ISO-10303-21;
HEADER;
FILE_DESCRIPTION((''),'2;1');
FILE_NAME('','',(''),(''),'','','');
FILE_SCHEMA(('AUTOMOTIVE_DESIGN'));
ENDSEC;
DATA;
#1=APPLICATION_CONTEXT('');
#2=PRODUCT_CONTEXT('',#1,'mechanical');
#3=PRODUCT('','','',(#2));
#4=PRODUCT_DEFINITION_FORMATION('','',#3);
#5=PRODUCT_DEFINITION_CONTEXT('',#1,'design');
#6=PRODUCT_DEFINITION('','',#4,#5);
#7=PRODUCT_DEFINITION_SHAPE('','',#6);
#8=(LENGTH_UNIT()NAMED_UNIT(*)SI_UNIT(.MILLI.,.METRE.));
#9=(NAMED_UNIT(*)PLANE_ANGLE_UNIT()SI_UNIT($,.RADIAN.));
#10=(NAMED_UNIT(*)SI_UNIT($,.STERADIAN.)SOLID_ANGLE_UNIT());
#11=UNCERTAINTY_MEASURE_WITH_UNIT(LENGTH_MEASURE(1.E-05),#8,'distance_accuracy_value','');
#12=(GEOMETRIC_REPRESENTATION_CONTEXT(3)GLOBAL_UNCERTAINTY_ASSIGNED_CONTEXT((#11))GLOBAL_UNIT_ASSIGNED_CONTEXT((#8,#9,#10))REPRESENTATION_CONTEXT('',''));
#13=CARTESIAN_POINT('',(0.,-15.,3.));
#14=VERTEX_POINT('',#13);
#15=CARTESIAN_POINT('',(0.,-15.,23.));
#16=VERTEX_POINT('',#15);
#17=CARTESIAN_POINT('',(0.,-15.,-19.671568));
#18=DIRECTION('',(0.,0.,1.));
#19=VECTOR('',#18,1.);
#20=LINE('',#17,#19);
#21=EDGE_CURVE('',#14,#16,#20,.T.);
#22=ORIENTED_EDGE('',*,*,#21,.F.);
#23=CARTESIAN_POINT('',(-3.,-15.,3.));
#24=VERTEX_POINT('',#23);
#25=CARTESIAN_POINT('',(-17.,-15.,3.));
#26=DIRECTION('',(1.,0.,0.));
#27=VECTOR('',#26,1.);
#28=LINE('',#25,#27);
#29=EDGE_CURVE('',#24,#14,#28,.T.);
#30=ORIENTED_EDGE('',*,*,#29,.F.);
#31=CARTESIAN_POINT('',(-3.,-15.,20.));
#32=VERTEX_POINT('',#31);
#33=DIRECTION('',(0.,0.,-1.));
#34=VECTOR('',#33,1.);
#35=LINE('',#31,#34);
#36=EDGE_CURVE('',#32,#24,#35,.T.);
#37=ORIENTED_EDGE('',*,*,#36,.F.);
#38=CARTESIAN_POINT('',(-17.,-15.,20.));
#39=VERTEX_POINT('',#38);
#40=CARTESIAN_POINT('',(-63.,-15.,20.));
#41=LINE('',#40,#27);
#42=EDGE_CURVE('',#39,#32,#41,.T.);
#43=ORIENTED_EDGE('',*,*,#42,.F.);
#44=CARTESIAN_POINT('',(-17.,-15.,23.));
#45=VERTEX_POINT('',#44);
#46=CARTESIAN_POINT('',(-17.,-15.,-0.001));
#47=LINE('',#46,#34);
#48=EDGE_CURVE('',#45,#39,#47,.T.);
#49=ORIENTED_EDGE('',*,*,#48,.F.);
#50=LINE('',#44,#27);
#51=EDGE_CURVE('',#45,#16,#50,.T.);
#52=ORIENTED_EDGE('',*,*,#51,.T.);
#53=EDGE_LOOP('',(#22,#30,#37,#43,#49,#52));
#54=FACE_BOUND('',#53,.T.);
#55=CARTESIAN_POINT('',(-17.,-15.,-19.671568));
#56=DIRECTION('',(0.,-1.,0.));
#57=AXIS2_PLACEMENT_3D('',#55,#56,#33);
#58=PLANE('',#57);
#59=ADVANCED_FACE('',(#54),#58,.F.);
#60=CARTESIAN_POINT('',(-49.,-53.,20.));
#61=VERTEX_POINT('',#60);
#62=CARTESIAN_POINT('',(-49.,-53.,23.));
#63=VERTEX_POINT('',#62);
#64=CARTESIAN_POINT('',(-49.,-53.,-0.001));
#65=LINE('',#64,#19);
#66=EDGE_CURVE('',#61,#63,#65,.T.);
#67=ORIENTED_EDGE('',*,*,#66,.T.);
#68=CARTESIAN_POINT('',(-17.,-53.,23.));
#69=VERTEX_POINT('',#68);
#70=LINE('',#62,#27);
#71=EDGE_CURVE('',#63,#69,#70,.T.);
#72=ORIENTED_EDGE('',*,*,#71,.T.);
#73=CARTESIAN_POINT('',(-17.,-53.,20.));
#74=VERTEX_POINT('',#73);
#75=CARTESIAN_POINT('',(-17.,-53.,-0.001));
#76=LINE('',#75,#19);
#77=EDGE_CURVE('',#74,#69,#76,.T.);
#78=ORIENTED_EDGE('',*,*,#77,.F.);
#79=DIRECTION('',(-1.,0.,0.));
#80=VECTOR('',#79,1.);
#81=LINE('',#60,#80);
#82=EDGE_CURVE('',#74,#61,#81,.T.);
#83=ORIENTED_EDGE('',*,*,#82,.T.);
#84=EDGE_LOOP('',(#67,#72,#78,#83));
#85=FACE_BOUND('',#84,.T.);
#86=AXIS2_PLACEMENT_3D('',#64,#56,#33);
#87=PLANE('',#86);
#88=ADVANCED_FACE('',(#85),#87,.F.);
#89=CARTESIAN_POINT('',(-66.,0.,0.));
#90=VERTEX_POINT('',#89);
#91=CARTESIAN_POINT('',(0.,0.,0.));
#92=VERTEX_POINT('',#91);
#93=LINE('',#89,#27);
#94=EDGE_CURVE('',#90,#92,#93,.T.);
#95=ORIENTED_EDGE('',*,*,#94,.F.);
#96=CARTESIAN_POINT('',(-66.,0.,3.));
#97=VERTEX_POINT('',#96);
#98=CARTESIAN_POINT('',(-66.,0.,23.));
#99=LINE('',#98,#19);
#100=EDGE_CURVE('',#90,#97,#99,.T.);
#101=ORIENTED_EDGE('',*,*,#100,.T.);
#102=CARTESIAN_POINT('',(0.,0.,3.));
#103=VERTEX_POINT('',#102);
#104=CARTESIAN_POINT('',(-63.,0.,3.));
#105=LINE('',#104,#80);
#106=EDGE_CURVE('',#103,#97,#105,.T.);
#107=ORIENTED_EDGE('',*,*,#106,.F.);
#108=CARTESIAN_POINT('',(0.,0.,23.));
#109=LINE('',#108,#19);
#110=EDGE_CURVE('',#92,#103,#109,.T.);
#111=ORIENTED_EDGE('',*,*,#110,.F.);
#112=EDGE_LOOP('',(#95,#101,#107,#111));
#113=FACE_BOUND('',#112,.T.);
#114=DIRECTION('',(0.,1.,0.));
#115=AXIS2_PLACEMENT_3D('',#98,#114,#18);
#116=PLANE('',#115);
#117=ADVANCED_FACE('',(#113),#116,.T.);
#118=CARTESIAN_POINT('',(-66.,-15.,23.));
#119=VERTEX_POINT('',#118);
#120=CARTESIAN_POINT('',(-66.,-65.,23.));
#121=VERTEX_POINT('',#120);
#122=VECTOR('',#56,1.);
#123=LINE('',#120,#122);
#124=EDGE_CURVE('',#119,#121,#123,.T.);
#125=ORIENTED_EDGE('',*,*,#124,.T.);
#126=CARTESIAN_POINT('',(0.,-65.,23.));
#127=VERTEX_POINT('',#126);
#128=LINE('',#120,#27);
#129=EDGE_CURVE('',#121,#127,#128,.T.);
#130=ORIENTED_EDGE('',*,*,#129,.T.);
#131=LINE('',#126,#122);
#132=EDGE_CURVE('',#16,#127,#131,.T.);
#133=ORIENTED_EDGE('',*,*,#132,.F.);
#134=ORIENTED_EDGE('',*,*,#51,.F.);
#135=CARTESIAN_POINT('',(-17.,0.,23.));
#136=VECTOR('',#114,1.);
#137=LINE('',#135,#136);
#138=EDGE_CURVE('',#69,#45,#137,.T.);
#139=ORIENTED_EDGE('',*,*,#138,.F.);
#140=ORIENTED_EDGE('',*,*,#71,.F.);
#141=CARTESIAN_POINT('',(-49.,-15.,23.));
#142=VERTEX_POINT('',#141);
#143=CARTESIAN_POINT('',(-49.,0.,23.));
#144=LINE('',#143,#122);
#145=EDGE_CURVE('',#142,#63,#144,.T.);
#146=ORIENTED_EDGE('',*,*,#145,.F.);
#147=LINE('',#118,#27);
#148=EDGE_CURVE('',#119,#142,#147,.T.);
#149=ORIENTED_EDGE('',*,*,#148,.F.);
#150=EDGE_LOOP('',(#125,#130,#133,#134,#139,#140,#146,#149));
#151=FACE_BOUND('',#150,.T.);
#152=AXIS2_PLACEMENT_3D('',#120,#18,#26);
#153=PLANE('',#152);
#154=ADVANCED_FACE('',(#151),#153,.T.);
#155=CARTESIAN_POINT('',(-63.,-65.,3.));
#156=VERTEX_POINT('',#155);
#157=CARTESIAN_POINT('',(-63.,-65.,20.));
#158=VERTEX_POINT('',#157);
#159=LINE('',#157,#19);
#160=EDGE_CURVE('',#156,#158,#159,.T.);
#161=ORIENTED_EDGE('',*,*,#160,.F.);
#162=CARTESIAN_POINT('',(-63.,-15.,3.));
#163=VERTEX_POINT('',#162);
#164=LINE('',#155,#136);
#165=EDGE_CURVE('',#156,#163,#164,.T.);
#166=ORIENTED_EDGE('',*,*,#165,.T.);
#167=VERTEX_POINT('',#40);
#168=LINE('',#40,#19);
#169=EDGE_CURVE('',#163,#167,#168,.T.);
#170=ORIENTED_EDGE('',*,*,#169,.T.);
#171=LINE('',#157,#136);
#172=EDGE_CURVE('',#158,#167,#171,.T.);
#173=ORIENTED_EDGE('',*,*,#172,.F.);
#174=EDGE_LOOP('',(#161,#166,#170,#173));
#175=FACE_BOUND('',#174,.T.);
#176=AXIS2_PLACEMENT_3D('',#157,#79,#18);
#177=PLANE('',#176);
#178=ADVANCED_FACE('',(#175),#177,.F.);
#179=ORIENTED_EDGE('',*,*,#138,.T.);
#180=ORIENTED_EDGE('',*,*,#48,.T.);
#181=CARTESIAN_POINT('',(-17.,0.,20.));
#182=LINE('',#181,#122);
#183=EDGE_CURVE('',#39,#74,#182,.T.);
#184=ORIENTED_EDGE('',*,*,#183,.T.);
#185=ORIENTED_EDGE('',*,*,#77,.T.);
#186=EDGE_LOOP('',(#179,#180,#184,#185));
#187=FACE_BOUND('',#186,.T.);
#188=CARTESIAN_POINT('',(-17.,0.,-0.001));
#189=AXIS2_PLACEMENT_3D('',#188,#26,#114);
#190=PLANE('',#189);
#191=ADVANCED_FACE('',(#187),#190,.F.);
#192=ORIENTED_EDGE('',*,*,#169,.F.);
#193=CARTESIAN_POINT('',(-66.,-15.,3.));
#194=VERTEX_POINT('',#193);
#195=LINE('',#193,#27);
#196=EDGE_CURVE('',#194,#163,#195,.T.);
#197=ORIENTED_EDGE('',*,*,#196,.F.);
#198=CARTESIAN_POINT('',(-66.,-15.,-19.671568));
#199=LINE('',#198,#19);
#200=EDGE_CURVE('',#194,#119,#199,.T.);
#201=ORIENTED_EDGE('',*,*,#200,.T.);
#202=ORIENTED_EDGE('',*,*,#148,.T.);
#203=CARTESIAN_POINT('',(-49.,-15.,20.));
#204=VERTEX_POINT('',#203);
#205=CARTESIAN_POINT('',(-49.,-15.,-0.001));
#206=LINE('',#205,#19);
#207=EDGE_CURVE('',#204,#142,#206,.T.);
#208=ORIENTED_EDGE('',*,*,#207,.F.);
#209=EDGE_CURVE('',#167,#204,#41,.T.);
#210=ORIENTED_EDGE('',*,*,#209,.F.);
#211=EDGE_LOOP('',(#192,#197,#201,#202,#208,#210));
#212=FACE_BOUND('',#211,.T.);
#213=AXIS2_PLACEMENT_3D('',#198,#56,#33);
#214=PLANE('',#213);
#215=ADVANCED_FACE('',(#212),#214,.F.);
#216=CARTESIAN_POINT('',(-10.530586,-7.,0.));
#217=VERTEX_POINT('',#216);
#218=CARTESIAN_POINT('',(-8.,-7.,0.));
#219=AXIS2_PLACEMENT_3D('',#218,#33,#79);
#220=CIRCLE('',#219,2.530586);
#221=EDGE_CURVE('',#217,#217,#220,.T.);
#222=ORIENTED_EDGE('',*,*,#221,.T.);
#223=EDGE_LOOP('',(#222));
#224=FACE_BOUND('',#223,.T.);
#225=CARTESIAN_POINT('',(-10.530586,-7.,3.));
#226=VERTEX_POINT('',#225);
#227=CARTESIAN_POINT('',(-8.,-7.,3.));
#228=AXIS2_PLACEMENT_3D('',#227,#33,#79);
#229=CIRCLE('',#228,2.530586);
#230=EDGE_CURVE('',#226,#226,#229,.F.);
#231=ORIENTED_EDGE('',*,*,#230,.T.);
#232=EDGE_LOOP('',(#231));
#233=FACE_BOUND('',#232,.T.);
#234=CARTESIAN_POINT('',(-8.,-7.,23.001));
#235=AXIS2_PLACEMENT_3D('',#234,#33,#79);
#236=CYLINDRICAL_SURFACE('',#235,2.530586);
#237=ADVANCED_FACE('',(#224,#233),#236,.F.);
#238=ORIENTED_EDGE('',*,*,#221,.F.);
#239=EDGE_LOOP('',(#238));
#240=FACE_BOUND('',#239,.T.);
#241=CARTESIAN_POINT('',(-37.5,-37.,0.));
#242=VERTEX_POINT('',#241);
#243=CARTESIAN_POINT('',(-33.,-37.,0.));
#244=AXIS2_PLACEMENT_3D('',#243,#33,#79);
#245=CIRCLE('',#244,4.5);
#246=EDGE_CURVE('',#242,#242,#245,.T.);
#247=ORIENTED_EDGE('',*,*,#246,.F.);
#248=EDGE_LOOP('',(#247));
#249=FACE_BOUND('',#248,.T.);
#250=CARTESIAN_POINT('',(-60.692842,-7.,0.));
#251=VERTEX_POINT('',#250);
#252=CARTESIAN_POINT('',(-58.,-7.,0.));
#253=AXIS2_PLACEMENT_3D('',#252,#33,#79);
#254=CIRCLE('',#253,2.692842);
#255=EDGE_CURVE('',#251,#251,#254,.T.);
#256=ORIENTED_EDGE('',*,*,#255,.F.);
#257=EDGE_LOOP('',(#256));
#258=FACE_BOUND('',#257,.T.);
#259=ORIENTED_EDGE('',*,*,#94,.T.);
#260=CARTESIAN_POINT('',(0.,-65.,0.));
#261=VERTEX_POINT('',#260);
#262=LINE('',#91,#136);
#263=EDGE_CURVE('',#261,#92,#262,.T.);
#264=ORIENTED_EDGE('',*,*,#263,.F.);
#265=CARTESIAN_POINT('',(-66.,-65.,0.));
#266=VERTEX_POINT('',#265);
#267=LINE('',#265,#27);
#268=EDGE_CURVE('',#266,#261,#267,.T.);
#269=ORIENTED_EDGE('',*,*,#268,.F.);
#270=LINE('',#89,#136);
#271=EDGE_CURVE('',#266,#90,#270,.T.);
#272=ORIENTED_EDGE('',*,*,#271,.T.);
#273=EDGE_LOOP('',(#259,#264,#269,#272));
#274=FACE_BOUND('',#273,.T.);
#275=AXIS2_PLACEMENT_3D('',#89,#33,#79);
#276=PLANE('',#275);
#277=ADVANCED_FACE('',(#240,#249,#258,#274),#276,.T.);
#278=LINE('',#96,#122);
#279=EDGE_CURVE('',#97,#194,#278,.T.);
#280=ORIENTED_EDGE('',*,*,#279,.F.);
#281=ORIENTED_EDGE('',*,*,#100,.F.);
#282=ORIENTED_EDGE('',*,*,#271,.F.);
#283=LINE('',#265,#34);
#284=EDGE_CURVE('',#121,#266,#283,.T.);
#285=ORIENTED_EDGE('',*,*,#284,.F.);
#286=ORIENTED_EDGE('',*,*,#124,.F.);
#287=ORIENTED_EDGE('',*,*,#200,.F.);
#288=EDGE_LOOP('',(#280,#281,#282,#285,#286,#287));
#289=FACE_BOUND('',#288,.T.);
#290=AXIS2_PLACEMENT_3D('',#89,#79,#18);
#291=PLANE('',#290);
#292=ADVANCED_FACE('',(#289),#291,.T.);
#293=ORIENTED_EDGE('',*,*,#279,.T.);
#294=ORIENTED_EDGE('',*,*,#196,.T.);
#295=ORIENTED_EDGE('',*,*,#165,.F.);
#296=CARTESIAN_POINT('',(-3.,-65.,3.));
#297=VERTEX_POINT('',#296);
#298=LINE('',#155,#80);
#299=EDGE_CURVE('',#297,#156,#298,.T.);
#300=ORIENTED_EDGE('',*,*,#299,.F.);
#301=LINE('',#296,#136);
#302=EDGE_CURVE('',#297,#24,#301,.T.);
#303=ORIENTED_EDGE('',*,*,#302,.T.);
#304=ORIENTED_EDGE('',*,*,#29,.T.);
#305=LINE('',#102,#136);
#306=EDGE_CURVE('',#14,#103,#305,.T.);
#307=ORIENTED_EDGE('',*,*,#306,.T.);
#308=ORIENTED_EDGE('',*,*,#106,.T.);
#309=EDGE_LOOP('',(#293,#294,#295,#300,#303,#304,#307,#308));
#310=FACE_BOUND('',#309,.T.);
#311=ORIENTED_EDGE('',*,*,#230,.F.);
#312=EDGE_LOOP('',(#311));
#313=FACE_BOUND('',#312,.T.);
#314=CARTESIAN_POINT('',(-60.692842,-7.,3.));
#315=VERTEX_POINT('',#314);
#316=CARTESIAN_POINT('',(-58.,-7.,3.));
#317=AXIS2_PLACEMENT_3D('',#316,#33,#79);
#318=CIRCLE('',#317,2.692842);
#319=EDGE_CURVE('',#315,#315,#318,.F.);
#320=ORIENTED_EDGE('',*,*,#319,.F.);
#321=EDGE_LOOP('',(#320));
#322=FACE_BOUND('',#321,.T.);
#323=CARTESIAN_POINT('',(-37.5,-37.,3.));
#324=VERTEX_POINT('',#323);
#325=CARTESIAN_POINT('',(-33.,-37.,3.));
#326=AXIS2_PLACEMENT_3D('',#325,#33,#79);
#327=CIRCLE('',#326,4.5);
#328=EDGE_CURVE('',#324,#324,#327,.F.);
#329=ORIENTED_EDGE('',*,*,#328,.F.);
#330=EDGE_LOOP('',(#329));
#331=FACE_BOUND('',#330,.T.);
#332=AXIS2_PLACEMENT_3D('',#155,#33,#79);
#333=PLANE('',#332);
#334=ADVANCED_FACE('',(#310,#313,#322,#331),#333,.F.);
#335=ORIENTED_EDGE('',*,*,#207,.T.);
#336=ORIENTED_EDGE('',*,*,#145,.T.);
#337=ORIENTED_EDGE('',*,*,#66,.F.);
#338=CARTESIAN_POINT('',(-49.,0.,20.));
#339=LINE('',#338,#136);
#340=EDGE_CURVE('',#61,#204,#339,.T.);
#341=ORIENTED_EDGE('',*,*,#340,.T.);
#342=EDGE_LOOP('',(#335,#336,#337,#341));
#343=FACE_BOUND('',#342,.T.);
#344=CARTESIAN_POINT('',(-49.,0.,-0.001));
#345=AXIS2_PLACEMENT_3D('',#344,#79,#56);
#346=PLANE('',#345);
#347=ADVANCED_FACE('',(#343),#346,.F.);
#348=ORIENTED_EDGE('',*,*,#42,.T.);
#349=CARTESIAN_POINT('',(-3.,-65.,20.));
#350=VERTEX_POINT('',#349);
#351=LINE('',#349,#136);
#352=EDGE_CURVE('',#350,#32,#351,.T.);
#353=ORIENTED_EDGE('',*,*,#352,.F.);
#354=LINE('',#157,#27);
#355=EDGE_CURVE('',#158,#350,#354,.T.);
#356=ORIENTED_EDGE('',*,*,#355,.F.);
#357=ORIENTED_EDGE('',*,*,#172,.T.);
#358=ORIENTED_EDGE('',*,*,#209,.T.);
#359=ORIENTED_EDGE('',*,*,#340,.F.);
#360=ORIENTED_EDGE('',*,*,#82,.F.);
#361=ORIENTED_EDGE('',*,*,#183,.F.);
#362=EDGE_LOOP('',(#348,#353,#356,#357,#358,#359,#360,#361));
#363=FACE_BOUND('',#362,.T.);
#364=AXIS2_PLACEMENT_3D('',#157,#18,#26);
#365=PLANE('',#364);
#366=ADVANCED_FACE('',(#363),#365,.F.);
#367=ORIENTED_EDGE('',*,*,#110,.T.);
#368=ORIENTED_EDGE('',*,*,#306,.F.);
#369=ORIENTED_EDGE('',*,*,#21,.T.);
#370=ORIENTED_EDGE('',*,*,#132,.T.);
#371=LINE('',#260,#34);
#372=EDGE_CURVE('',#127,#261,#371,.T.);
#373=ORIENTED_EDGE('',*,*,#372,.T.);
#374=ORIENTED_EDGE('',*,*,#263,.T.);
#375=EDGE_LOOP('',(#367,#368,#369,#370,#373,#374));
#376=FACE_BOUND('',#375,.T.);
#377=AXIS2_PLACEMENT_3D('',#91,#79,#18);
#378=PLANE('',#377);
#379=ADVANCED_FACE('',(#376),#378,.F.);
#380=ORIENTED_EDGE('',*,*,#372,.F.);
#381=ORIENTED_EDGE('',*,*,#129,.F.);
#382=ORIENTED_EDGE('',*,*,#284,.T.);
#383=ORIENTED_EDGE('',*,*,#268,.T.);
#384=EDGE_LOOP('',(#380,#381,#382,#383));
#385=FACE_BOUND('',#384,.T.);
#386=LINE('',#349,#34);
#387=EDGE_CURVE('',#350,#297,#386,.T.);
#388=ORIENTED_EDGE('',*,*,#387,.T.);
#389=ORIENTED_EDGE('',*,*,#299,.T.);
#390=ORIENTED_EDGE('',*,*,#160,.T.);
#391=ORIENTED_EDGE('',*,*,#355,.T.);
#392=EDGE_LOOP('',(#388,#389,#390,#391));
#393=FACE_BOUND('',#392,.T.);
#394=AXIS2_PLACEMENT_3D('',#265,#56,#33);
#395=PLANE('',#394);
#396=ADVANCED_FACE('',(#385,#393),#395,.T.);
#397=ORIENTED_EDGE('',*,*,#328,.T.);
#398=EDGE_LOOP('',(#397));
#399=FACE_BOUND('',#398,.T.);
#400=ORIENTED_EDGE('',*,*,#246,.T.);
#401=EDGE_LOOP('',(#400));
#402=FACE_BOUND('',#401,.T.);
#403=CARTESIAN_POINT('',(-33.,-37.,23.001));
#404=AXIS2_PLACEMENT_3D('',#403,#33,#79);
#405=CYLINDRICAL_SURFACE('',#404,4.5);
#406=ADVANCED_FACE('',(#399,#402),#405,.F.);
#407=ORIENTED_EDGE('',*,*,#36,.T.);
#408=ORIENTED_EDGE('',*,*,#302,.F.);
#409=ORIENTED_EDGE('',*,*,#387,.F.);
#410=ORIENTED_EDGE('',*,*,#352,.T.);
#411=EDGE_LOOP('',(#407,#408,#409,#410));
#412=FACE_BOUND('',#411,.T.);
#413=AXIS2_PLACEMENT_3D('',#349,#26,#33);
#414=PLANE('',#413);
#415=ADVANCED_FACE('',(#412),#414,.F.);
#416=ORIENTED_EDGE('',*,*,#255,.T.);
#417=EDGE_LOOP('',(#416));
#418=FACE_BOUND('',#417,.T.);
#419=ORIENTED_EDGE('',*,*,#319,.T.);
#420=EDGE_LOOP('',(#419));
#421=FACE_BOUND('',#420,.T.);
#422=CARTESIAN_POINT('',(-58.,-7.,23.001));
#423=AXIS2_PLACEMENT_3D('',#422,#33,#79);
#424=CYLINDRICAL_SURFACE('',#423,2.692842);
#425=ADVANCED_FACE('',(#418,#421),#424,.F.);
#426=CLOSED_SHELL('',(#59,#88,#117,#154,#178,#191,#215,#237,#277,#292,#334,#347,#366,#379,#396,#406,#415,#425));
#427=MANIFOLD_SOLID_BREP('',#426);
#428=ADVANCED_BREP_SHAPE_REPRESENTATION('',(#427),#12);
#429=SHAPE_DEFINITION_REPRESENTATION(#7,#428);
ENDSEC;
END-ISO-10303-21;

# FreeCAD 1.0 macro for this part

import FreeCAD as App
import Part
import Sketcher
from FreeCAD import Vector


def add_polygon(sketch, points):
    """Adds a closed chain of lines whose ends are joined by coincident constraints."""
    first, n = sketch.GeometryCount, len(points)
    for a, b in zip(points, points[1:] + points[:1]):
        sketch.addGeometry(Part.LineSegment(App.Vector(*a, 0), App.Vector(*b, 0)), False)
    for i in range(n):
        sketch.addConstraint(Sketcher.Constraint("Coincident", first + i, 2, first + (i + 1) % n, 1))

doc = App.newDocument("Part")
body = doc.addObject("PartDesign::Body", "Body")

# Sketch on YZ plane
sketch1 = body.newObject("Sketcher::SketchObject", "Sketch")
sketch1.AttachmentSupport = (doc.getObject("YZ_Plane"), [""])
sketch1.MapMode = "FlatFace"
add_polygon(sketch1, [(0, 23), (-65, 23), (-65, 0), (0, 0)])  # lines 0-3
sketch1.addConstraint([
    Sketcher.Constraint("Horizontal", 0),
    Sketcher.Constraint("Vertical", 1),
    Sketcher.Constraint("Horizontal", 2),
    Sketcher.Constraint("Vertical", 3),
    Sketcher.Constraint("Coincident", 2, 2, -1, 1),
    Sketcher.Constraint("DistanceX", 0, 2, 0, 1, 65.0),
    Sketcher.Constraint("DistanceY", 1, 2, 1, 1, 23.0),
])
pad1 = body.newObject("PartDesign::Pad", "Pad")
pad1.Profile = sketch1
pad1.Length = 66
pad1.Reversed = True

# Sketch on XZ plane
sketch2 = body.newObject("Sketcher::SketchObject", "Sketch001")
sketch2.AttachmentSupport = (doc.getObject("XZ_Plane"), [""])
sketch2.MapMode = "FlatFace"
add_polygon(sketch2, [(-63, 3), (-63, 20), (-3, 20), (-3, 3)])  # lines 0-3
sketch2.addConstraint([
    Sketcher.Constraint("Vertical", 0),
    Sketcher.Constraint("Horizontal", 1),
    Sketcher.Constraint("Vertical", 2),
    Sketcher.Constraint("Horizontal", 3),
    Sketcher.Constraint("DistanceX", 1, 1, 1, 2, 60.0),
    Sketcher.Constraint("DistanceY", 0, 1, 0, 2, 17.0),
    Sketcher.Constraint("DistanceX", 0, 2, -1, 1, 63.0),
    Sketcher.Constraint("DistanceY", -1, 1, 0, 2, 20.0),
])
pocket1 = body.newObject("PartDesign::Pocket", "Pocket")
pocket1.Profile = sketch2
pocket1.Type = "ThroughAll"
pocket1.Reversed = True

# Sketch on XY plane
sketch3 = body.newObject("Sketcher::SketchObject", "Sketch002")
sketch3.AttachmentSupport = (doc.getObject("XY_Plane"), [""])
sketch3.MapMode = "FlatFace"
sketch3.AttachmentOffset = App.Placement(Vector(0, 0, 23), App.Rotation())
add_polygon(sketch3, [(-49, 0), (-49, -53), (-17, -53), (-17, 0)])  # lines 0-3
sketch3.addConstraint([
    Sketcher.Constraint("Vertical", 0),
    Sketcher.Constraint("Horizontal", 1),
    Sketcher.Constraint("Vertical", 2),
    Sketcher.Constraint("Horizontal", 3),
    Sketcher.Constraint("PointOnObject", 2, 2, -1),
    Sketcher.Constraint("DistanceX", 1, 1, 1, 2, 32.0),
    Sketcher.Constraint("DistanceY", 0, 2, 0, 1, 53.0),
    Sketcher.Constraint("DistanceX", 0, 2, -1, 1, 49.0),
])
pocket2 = body.newObject("PartDesign::Pocket", "Pocket001")
pocket2.Profile = sketch3
pocket2.Type = "UpToFirst"

# Sketch on XY plane
sketch4 = body.newObject("Sketcher::SketchObject", "Sketch003")
sketch4.AttachmentSupport = (doc.getObject("XY_Plane"), [""])
sketch4.MapMode = "FlatFace"
sketch4.addGeometry(Part.Circle(Vector(-33, -37, 0), Vector(0, 0, 1), 4.5), False)
sketch4.addConstraint([
    Sketcher.Constraint("Diameter", 0, 9.0),
    Sketcher.Constraint("DistanceX", 0, 3, -1, 1, 33.0),
    Sketcher.Constraint("DistanceY", 0, 3, -1, 1, 37.0),
])
pocket3 = body.newObject("PartDesign::Pocket", "Pocket002")
pocket3.Profile = sketch4
pocket3.Type = "UpToFirst"
pocket3.Reversed = True

# Sketch on XY plane
sketch5 = body.newObject("Sketcher::SketchObject", "Sketch004")
sketch5.AttachmentSupport = (doc.getObject("XY_Plane"), [""])
sketch5.MapMode = "FlatFace"
sketch5.addGeometry(Part.Circle(Vector(-8, -7, 0), Vector(0, 0, 1), 2.530586), False)
sketch5.addConstraint([
    Sketcher.Constraint("DistanceX", 0, 3, -1, 1, 8.0),
    Sketcher.Constraint("DistanceY", 0, 3, -1, 1, 7.0),
    Sketcher.Constraint("Diameter", 0, 5.061172),
])
pocket4 = body.newObject("PartDesign::Pocket", "Pocket003")
pocket4.Profile = sketch5
pocket4.Type = "UpToFirst"
pocket4.Reversed = True

# Sketch on XY plane
sketch6 = body.newObject("Sketcher::SketchObject", "Sketch005")
sketch6.AttachmentSupport = (doc.getObject("XY_Plane"), [""])
sketch6.MapMode = "FlatFace"
sketch6.addGeometry(Part.Circle(Vector(-58, -7, 0), Vector(0, 0, 1), 2.692842), False)
sketch6.addConstraint([
    Sketcher.Constraint("DistanceX", 0, 3, -1, 1, 58.0),
    Sketcher.Constraint("DistanceY", 0, 3, -1, 1, 7.0),
    Sketcher.Constraint("Diameter", 0, 5.385684),
])
pocket5 = body.newObject("PartDesign::Pocket", "Pocket004")
pocket5.Profile = sketch6
pocket5.Type = "UpToFirst"
pocket5.Reversed = True

# Sketch on XY plane
sketch7 = body.newObject("Sketcher::SketchObject", "Sketch006")
sketch7.AttachmentSupport = (doc.getObject("XY_Plane"), [""])
sketch7.MapMode = "FlatFace"
sketch7.AttachmentOffset = App.Placement(Vector(0, 0, 23), App.Rotation())
add_polygon(sketch7, [(-66, 0), (-66, -15), (-49, -15), (-49, 0)])  # lines 0-3
add_polygon(sketch7, [(-17, 0), (-17, -15), (0, -15), (0, 0)])  # lines 4-7
sketch7.addConstraint([
    Sketcher.Constraint("Vertical", 0),
    Sketcher.Constraint("Horizontal", 1),
    Sketcher.Constraint("Vertical", 2),
    Sketcher.Constraint("Horizontal", 3),
    Sketcher.Constraint("Vertical", 4),
    Sketcher.Constraint("Horizontal", 5),
    Sketcher.Constraint("Vertical", 6),
    Sketcher.Constraint("Horizontal", 7),
    Sketcher.Constraint("Coincident", 6, 2, -1, 1),
    Sketcher.Constraint("PointOnObject", 2, 2, -1),
    Sketcher.Constraint("Horizontal", 1, 2, 4, 2),
    Sketcher.Constraint("Equal", 3, 5),
    Sketcher.Constraint("DistanceX", 1, 1, 1, 2, 17.0),
    Sketcher.Constraint("DistanceY", 0, 2, 0, 1, 15.0),
    Sketcher.Constraint("DistanceX", 0, 2, -1, 1, 66.0),
])
pocket6 = body.newObject("PartDesign::Pocket", "Pocket005")
pocket6.Profile = sketch7
pocket6.Length = 20

doc.recompute()
